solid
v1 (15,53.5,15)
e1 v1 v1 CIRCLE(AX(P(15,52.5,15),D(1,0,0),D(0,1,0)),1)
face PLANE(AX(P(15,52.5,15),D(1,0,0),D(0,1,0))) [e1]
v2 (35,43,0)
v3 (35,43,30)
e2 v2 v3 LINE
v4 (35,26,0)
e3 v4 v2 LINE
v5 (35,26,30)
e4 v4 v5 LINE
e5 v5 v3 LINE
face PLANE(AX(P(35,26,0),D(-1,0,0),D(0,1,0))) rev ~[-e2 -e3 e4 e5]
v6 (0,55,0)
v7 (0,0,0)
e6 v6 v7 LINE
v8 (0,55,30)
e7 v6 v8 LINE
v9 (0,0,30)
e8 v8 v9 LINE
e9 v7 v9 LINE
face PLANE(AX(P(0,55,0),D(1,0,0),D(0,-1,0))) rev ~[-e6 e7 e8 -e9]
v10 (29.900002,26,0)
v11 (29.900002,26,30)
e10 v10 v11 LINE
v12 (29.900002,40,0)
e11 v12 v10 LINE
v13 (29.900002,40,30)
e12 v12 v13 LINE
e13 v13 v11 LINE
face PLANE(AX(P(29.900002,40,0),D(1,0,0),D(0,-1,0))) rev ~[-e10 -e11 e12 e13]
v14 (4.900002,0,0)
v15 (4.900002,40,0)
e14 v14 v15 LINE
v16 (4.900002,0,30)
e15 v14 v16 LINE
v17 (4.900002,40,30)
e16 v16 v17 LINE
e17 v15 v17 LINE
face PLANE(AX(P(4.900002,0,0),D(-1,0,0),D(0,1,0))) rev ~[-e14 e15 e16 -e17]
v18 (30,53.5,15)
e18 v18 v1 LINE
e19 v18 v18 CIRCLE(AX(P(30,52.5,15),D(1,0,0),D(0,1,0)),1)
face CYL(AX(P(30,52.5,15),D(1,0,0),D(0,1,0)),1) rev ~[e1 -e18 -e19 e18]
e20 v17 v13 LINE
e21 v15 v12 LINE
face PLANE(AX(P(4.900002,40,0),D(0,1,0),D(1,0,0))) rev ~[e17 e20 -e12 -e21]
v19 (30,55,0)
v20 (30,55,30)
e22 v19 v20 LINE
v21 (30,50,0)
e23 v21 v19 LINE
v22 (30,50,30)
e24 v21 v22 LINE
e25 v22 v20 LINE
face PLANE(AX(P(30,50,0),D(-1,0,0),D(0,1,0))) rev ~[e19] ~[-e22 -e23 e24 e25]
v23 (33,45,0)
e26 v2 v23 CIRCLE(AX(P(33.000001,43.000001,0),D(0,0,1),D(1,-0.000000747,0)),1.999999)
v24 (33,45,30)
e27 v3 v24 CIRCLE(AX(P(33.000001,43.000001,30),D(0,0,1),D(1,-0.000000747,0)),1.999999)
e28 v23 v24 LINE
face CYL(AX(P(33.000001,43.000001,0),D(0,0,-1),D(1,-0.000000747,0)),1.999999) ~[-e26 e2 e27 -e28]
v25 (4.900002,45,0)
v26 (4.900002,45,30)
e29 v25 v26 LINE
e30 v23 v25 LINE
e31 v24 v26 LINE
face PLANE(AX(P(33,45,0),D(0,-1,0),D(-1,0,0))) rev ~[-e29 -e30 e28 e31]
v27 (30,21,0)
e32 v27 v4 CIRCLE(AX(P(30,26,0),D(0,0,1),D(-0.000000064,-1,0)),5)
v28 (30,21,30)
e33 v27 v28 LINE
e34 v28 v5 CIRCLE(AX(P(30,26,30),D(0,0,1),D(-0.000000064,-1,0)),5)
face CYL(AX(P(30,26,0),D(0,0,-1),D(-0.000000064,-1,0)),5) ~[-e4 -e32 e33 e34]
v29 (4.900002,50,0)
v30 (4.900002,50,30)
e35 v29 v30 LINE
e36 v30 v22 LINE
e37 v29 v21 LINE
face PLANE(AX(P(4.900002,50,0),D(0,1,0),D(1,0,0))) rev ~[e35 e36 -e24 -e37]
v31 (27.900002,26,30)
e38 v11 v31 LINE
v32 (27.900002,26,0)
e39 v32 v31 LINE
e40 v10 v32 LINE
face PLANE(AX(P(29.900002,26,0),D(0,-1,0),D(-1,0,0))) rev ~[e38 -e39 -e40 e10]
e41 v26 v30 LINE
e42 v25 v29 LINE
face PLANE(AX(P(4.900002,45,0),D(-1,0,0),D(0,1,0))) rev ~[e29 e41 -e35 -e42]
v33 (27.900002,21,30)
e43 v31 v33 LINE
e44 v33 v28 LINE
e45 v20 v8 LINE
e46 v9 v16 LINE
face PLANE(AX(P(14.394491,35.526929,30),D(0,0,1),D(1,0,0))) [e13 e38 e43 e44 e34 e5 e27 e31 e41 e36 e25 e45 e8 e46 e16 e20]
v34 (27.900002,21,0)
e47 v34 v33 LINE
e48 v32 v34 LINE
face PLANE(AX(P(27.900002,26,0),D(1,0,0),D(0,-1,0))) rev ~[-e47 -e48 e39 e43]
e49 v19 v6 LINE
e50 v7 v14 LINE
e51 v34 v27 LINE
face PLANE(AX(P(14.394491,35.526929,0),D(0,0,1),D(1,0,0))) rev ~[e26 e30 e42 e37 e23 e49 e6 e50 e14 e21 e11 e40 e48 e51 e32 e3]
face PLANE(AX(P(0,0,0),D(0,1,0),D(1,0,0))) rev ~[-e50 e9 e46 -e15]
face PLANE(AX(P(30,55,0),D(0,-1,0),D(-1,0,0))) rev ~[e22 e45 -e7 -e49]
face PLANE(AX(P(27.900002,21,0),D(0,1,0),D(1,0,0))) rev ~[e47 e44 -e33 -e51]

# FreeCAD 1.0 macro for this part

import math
import FreeCAD as App
import Part
import Sketcher

V = App.Vector
Q = App.Units.Quantity

doc = App.newDocument("Part")
body = doc.addObject("PartDesign::Body", "Body")

sketch1 = body.newObject("Sketcher::SketchObject", "Sketch")
sketch1.AttachmentSupport = (doc.getObject("XY_Plane"), [""])
sketch1.MapMode = "FlatFace"
sketch1.addGeometry([
    Part.LineSegment(V(0, 0, 0), V(4.9, 0, 0)),
    Part.LineSegment(V(4.9, 0, 0), V(4.9, 40, 0)),
    Part.LineSegment(V(4.9, 40, 0), V(29.9, 40, 0)),
    Part.LineSegment(V(29.9, 40, 0), V(29.9, 26, 0)),
    Part.LineSegment(V(29.9, 26, 0), V(27.9, 26, 0)),
    Part.LineSegment(V(27.9, 26, 0), V(27.9, 21, 0)),
    Part.LineSegment(V(27.9, 21, 0), V(30, 21, 0)),
    Part.ArcOfCircle(Part.Circle(V(30, 26, 0), V(0, 0, 1), 5), math.radians(-90), math.radians(0)),
    Part.LineSegment(V(35, 26, 0), V(35, 43, 0)),
    Part.ArcOfCircle(Part.Circle(V(33, 43, 0), V(0, 0, 1), 2), math.radians(0), math.radians(90)),
    Part.LineSegment(V(33, 45, 0), V(4.9, 45, 0)),
    Part.LineSegment(V(4.9, 45, 0), V(4.9, 50, 0)),
    Part.LineSegment(V(4.9, 50, 0), V(30, 50, 0)),
    Part.LineSegment(V(30, 50, 0), V(30, 55, 0)),
    Part.LineSegment(V(30, 55, 0), V(0, 55, 0)),
    Part.LineSegment(V(0, 55, 0), V(0, 0, 0)),
], False)
sketch1.addConstraint([
    Sketcher.Constraint("Coincident", 0, 2, 1, 1),
    Sketcher.Constraint("Coincident", 1, 2, 2, 1),
    Sketcher.Constraint("Coincident", 2, 2, 3, 1),
    Sketcher.Constraint("Coincident", 3, 2, 4, 1),
    Sketcher.Constraint("Coincident", 4, 2, 5, 1),
    Sketcher.Constraint("Coincident", 5, 2, 6, 1),
    Sketcher.Constraint("Tangent", 6, 2, 7, 1),
    Sketcher.Constraint("Tangent", 7, 2, 8, 1),
    Sketcher.Constraint("Tangent", 8, 2, 9, 1),
    Sketcher.Constraint("Tangent", 9, 2, 10, 1),
    Sketcher.Constraint("Coincident", 10, 2, 11, 1),
    Sketcher.Constraint("Coincident", 11, 2, 12, 1),
    Sketcher.Constraint("Coincident", 12, 2, 13, 1),
    Sketcher.Constraint("Coincident", 13, 2, 14, 1),
    Sketcher.Constraint("Coincident", 14, 2, 15, 1),
    Sketcher.Constraint("Coincident", 15, 2, 0, 1),
    Sketcher.Constraint("Horizontal", 0),
    Sketcher.Constraint("Vertical", 1),
    Sketcher.Constraint("Horizontal", 2),
    Sketcher.Constraint("Vertical", 3),
    Sketcher.Constraint("Horizontal", 4),
    Sketcher.Constraint("Vertical", 5),
    Sketcher.Constraint("Horizontal", 6),
    Sketcher.Constraint("Vertical", 8),
    Sketcher.Constraint("Horizontal", 10),
    Sketcher.Constraint("Vertical", 11),
    Sketcher.Constraint("Horizontal", 12),
    Sketcher.Constraint("Vertical", 13),
    Sketcher.Constraint("Horizontal", 14),
    Sketcher.Constraint("Vertical", 15),
    Sketcher.Constraint("Coincident", 15, 2, -1, 1),
    Sketcher.Constraint("Horizontal", 7, 3, 3, 2),
    Sketcher.Constraint("Vertical", 1, 2, 10, 2),
    Sketcher.Constraint("Vertical", 6, 2, 12, 2),
    Sketcher.Constraint("Equal", 5, 11),
    Sketcher.Constraint("Equal", 11, 13),
    Sketcher.Constraint("Radius", 7, Q("5 mm")),
    Sketcher.Constraint("Radius", 9, Q("1.999999 mm")),
    Sketcher.Constraint("DistanceX", 2, 1, 2, 2, Q("25 mm")),
    Sketcher.Constraint("DistanceX", 4, 2, 4, 1, Q("2 mm")),
    Sketcher.Constraint("DistanceX", 14, 2, 14, 1, Q("30 mm")),
    Sketcher.Constraint("DistanceY", 1, 1, 1, 2, Q("40 mm")),
    Sketcher.Constraint("DistanceY", 3, 2, 3, 1, Q("14 mm")),
    Sketcher.Constraint("DistanceY", 8, 1, 8, 2, Q("17 mm")),
    Sketcher.Constraint("DistanceX", 0, 1, 0, 2, Q("4.900002 mm")),
])
pad1 = body.newObject("PartDesign::Pad", "Pad")
pad1.Profile = sketch1
pad1.Length = 30

sketch2 = body.newObject("Sketcher::SketchObject", "Sketch001")
sketch2.AttachmentSupport = (doc.getObject("YZ_Plane"), [""])
sketch2.MapMode = "FlatFace"
sketch2.AttachmentOffset = App.Placement(V(0, 0, 30), App.Rotation())
sketch2.addGeometry(Part.Circle(V(52.5, 15, 0), V(0, 0, 1), 1), False)
sketch2.addConstraint([
    Sketcher.Constraint("Diameter", 0, Q("2 mm")),
    Sketcher.Constraint("DistanceY", -1, 1, 0, 3, Q("15 mm")),
    Sketcher.Constraint("DistanceX", -1, 1, 0, 3, Q("52.5 mm")),
])
pocket1 = body.newObject("PartDesign::Pocket", "Pocket")
pocket1.Profile = sketch2
pocket1.Length = 15

doc.recompute()
